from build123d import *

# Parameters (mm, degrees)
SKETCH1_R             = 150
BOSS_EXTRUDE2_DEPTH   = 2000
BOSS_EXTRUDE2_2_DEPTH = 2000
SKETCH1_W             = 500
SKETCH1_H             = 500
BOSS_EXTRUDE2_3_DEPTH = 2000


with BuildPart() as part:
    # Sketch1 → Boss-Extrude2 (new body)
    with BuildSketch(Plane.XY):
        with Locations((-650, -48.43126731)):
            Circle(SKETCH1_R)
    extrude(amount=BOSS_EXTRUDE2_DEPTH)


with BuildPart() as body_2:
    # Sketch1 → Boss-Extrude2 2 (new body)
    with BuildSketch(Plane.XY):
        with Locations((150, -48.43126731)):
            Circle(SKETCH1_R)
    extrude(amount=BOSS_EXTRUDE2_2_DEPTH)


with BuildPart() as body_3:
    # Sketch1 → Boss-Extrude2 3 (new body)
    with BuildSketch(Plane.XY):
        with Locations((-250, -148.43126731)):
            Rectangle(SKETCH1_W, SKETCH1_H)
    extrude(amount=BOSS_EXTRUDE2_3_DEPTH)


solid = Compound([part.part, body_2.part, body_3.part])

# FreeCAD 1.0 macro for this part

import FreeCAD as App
import Part
import Sketcher
from FreeCAD import Vector

doc = App.newDocument("Part")
body = doc.addObject("PartDesign::Body", "Body")

sketch1 = body.newObject("Sketcher::SketchObject", "Sketch")
sketch1.AttachmentSupport = (doc.getObject("XY_Plane"), [""])
sketch1.MapMode = "FlatFace"
sketch1.addGeometry(Part.Circle(Vector(-650, -48, 0), Vector(0, 0, 1), 150), False)
sketch1.addConstraint(Sketcher.Constraint("Diameter", 0, 300.0))
sketch1.addConstraint(Sketcher.Constraint("DistanceX", 0, 3, -1, 1, 650.0))
sketch1.addConstraint(Sketcher.Constraint("DistanceY", 0, 3, -1, 1, 48.431267))
pad1 = body.newObject("PartDesign::Pad", "Pad")
pad1.Profile = sketch1
pad1.Length = 2000
body2 = doc.addObject("PartDesign::Body", "Body001")

sketch2 = body2.newObject("Sketcher::SketchObject", "Sketch001")
sketch2.AttachmentSupport = (doc.getObject("XY_Plane001"), [""])
sketch2.MapMode = "FlatFace"
sketch2.addGeometry(Part.Circle(Vector(150, -48, 0), Vector(0, 0, 1), 150), False)
sketch2.addConstraint(Sketcher.Constraint("Diameter", 0, 300.0))
sketch2.addConstraint(Sketcher.Constraint("DistanceX", -1, 1, 0, 3, 150.0))
sketch2.addConstraint(Sketcher.Constraint("DistanceY", 0, 3, -1, 1, 48.431267))
pad2 = body2.newObject("PartDesign::Pad", "Pad001")
pad2.Profile = sketch2
pad2.Length = 2000
body3 = doc.addObject("PartDesign::Body", "Body002")

sketch3 = body3.newObject("Sketcher::SketchObject", "Sketch002")
sketch3.AttachmentSupport = (doc.getObject("XY_Plane002"), [""])
sketch3.MapMode = "FlatFace"
sketch3.addGeometry(Part.LineSegment(Vector(-500, 102, 0), Vector(-500, -398, 0)), False)
sketch3.addGeometry(Part.LineSegment(Vector(-500, -398, 0), Vector(0, -398, 0)), False)
sketch3.addGeometry(Part.LineSegment(Vector(0, -398, 0), Vector(0, 102, 0)), False)
sketch3.addGeometry(Part.LineSegment(Vector(0, 102, 0), Vector(-500, 102, 0)), False)
sketch3.addConstraint(Sketcher.Constraint("Coincident", 0, 2, 1, 1))
sketch3.addConstraint(Sketcher.Constraint("Coincident", 1, 2, 2, 1))
sketch3.addConstraint(Sketcher.Constraint("Coincident", 2, 2, 3, 1))
sketch3.addConstraint(Sketcher.Constraint("Coincident", 3, 2, 0, 1))
sketch3.addConstraint(Sketcher.Constraint("Vertical", 0))
sketch3.addConstraint(Sketcher.Constraint("Horizontal", 1))
sketch3.addConstraint(Sketcher.Constraint("Vertical", 2))
sketch3.addConstraint(Sketcher.Constraint("Horizontal", 3))
sketch3.addConstraint(Sketcher.Constraint("PointOnObject", 1, 2, -2))
sketch3.addConstraint(Sketcher.Constraint("Equal", 3, 0))
sketch3.addConstraint(Sketcher.Constraint("DistanceX", 1, 1, 1, 2, 500.0))
sketch3.addConstraint(Sketcher.Constraint("DistanceY", 0, 2, -1, 1, 398.431267))
pad3 = body3.newObject("PartDesign::Pad", "Pad002")
pad3.Profile = sketch3
pad3.Length = 2000

doc.recompute()
